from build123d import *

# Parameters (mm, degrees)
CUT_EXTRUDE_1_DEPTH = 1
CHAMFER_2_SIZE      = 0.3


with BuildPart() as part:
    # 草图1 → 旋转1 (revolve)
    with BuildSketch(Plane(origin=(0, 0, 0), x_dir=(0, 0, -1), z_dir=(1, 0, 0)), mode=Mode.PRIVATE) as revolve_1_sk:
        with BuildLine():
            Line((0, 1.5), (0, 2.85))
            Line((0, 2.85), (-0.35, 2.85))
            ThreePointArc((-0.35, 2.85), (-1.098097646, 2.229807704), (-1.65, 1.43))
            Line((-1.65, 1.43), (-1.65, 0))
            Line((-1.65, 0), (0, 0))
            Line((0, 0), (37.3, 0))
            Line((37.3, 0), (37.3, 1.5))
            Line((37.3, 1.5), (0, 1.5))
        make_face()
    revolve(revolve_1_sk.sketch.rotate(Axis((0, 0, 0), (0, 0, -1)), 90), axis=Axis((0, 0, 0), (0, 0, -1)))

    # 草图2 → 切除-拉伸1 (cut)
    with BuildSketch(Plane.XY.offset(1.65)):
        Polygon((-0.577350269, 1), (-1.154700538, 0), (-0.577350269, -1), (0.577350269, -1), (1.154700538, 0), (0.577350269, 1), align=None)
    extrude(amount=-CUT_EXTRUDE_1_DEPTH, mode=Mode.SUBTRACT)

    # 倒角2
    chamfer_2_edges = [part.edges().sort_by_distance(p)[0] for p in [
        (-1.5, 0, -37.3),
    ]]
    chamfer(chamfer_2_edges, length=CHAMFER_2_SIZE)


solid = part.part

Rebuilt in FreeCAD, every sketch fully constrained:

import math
import FreeCAD as App
import Part
import Sketcher
from FreeCAD import Vector
Q = App.Units.Quantity


def edges_at(feature, points):
    """Names of the edges that pass closest to the given points."""
    edges = feature.Shape.Edges
    near = lambda p: min(range(len(edges)), key=lambda i: edges[i].distToShape(Part.Vertex(*p))[0])
    return sorted({f"Edge{near(p) + 1}" for p in points})

doc = App.newDocument("Part")
body = doc.addObject("PartDesign::Body", "Body")

# Sketch on YZ plane
sketch1 = doc.addObject("Sketcher::SketchObject", "Sketch")
body.addObject(sketch1)
sketch1.AttachmentSupport = (doc.YZ_Plane, [""])
sketch1.MapMode = "FlatFace"
sketch1.addGeometry([
    Part.LineSegment(Vector(1.5, 0, 0), Vector(2.85, 0, 0)),  # 0
    Part.LineSegment(Vector(2.85, 0, 0), Vector(2.85, 0.35, 0)),  # 1
    Part.ArcOfCircle(Part.Circle(Vector(-0.17, -1.52, 0), Vector(0, 0, 1), 3.55), math.radians(32), math.radians(63)),  # 2
    Part.LineSegment(Vector(1.43, 1.65, 0), Vector(0, 1.65, 0)),  # 3
    Part.LineSegment(Vector(0, 1.65, 0), Vector(0, -37.3, 0)),  # 4
    Part.LineSegment(Vector(0, -37.3, 0), Vector(1.5, -37.3, 0)),  # 5
    Part.LineSegment(Vector(1.5, -37.3, 0), Vector(1.5, 0, 0)),  # 6
], False)
sketch1.addConstraint([
    Sketcher.Constraint("Coincident", 0, 2, 1, 1),
    Sketcher.Constraint("Coincident", 1, 2, 2, 1),
    Sketcher.Constraint("Coincident", 2, 2, 3, 1),
    Sketcher.Constraint("Coincident", 3, 2, 4, 1),
    Sketcher.Constraint("Coincident", 4, 2, 5, 1),
    Sketcher.Constraint("Coincident", 5, 2, 6, 1),
    Sketcher.Constraint("Coincident", 6, 2, 0, 1),
    Sketcher.Constraint("Horizontal", 0),
    Sketcher.Constraint("Vertical", 1),
    Sketcher.Constraint("Horizontal", 3),
    Sketcher.Constraint("Vertical", 4),
    Sketcher.Constraint("Horizontal", 5),
    Sketcher.Constraint("Vertical", 6),
    Sketcher.Constraint("PointOnObject", 0, 2, -1),
    Sketcher.Constraint("PointOnObject", 3, 2, -2),
    Sketcher.Constraint("Radius", 2, 3.55),
    Sketcher.Constraint("DistanceX", 5, 1, 5, 2, 1.5),
    Sketcher.Constraint("DistanceY", 6, 1, 6, 2, 37.3),
    Sketcher.Constraint("DistanceX", 0, 1, 0, 2, 1.35),
    Sketcher.Constraint("DistanceX", 3, 2, 3, 1, 1.43),
    Sketcher.Constraint("DistanceY", 1, 1, 1, 2, 0.35),
    Sketcher.Constraint("DistanceY", 4, 2, 4, 1, 38.95),
])
revolution = doc.addObject("PartDesign::Revolution", "Revolution")
body.addObject(revolution)
revolution.Profile = sketch1
revolution.ReferenceAxis = (sketch1, ["V_Axis"])
revolution.Angle = 360

# Sketch on XY plane
sketch2 = doc.addObject("Sketcher::SketchObject", "Sketch001")
body.addObject(sketch2)
sketch2.AttachmentSupport = (doc.XY_Plane, [""])
sketch2.MapMode = "FlatFace"
sketch2.AttachmentOffset = App.Placement(Vector(0, 0, 1.65), App.Rotation())
sketch2.addGeometry([
    Part.LineSegment(Vector(-0.6, 1, 0), Vector(-1.2, 0, 0)),  # 0
    Part.LineSegment(Vector(-1.2, 0, 0), Vector(-0.6, -1, 0)),  # 1
    Part.LineSegment(Vector(-0.6, -1, 0), Vector(0.6, -1, 0)),  # 2
    Part.LineSegment(Vector(0.6, -1, 0), Vector(1.2, 0, 0)),  # 3
    Part.LineSegment(Vector(1.2, 0, 0), Vector(0.6, 1, 0)),  # 4
    Part.LineSegment(Vector(0.6, 1, 0), Vector(-0.6, 1, 0)),  # 5
], False)
sketch2.addConstraint([
    Sketcher.Constraint("Coincident", 0, 2, 1, 1),
    Sketcher.Constraint("Coincident", 1, 2, 2, 1),
    Sketcher.Constraint("Coincident", 2, 2, 3, 1),
    Sketcher.Constraint("Coincident", 3, 2, 4, 1),
    Sketcher.Constraint("Coincident", 4, 2, 5, 1),
    Sketcher.Constraint("Coincident", 5, 2, 0, 1),
    Sketcher.Constraint("Horizontal", 2),
    Sketcher.Constraint("Horizontal", 5),
    Sketcher.Constraint("Symmetric", 0, 2, 3, 2, -1, 1),
    Sketcher.Constraint("Symmetric", 1, 2, 4, 2, -1, 1),
    Sketcher.Constraint("PointOnObject", 0, 2, -1),
    Sketcher.Constraint("Parallel", 0, 3),
    Sketcher.Constraint("Vertical", 2, 2, 4, 2),
    Sketcher.Constraint("Angle", 0, Q("-120 deg")),
    Sketcher.Constraint("DistanceY", 1, 2, -1, 1, 1.0),
    Sketcher.Constraint("DistanceX", 2, 1, 2, 2, 1.154701),
])
pocket1 = doc.addObject("PartDesign::Pocket", "Pocket")
body.addObject(pocket1)
pocket1.Profile = sketch2
pocket1.Length = 1
doc.recompute()

chamfer = doc.addObject("PartDesign::Chamfer", "Chamfer")
body.addObject(chamfer)
chamfer.Base = (pocket1, edges_at(pocket1, [(-1.5, 0, -37.3)]))
chamfer.Size = 0.3

doc.recompute()
